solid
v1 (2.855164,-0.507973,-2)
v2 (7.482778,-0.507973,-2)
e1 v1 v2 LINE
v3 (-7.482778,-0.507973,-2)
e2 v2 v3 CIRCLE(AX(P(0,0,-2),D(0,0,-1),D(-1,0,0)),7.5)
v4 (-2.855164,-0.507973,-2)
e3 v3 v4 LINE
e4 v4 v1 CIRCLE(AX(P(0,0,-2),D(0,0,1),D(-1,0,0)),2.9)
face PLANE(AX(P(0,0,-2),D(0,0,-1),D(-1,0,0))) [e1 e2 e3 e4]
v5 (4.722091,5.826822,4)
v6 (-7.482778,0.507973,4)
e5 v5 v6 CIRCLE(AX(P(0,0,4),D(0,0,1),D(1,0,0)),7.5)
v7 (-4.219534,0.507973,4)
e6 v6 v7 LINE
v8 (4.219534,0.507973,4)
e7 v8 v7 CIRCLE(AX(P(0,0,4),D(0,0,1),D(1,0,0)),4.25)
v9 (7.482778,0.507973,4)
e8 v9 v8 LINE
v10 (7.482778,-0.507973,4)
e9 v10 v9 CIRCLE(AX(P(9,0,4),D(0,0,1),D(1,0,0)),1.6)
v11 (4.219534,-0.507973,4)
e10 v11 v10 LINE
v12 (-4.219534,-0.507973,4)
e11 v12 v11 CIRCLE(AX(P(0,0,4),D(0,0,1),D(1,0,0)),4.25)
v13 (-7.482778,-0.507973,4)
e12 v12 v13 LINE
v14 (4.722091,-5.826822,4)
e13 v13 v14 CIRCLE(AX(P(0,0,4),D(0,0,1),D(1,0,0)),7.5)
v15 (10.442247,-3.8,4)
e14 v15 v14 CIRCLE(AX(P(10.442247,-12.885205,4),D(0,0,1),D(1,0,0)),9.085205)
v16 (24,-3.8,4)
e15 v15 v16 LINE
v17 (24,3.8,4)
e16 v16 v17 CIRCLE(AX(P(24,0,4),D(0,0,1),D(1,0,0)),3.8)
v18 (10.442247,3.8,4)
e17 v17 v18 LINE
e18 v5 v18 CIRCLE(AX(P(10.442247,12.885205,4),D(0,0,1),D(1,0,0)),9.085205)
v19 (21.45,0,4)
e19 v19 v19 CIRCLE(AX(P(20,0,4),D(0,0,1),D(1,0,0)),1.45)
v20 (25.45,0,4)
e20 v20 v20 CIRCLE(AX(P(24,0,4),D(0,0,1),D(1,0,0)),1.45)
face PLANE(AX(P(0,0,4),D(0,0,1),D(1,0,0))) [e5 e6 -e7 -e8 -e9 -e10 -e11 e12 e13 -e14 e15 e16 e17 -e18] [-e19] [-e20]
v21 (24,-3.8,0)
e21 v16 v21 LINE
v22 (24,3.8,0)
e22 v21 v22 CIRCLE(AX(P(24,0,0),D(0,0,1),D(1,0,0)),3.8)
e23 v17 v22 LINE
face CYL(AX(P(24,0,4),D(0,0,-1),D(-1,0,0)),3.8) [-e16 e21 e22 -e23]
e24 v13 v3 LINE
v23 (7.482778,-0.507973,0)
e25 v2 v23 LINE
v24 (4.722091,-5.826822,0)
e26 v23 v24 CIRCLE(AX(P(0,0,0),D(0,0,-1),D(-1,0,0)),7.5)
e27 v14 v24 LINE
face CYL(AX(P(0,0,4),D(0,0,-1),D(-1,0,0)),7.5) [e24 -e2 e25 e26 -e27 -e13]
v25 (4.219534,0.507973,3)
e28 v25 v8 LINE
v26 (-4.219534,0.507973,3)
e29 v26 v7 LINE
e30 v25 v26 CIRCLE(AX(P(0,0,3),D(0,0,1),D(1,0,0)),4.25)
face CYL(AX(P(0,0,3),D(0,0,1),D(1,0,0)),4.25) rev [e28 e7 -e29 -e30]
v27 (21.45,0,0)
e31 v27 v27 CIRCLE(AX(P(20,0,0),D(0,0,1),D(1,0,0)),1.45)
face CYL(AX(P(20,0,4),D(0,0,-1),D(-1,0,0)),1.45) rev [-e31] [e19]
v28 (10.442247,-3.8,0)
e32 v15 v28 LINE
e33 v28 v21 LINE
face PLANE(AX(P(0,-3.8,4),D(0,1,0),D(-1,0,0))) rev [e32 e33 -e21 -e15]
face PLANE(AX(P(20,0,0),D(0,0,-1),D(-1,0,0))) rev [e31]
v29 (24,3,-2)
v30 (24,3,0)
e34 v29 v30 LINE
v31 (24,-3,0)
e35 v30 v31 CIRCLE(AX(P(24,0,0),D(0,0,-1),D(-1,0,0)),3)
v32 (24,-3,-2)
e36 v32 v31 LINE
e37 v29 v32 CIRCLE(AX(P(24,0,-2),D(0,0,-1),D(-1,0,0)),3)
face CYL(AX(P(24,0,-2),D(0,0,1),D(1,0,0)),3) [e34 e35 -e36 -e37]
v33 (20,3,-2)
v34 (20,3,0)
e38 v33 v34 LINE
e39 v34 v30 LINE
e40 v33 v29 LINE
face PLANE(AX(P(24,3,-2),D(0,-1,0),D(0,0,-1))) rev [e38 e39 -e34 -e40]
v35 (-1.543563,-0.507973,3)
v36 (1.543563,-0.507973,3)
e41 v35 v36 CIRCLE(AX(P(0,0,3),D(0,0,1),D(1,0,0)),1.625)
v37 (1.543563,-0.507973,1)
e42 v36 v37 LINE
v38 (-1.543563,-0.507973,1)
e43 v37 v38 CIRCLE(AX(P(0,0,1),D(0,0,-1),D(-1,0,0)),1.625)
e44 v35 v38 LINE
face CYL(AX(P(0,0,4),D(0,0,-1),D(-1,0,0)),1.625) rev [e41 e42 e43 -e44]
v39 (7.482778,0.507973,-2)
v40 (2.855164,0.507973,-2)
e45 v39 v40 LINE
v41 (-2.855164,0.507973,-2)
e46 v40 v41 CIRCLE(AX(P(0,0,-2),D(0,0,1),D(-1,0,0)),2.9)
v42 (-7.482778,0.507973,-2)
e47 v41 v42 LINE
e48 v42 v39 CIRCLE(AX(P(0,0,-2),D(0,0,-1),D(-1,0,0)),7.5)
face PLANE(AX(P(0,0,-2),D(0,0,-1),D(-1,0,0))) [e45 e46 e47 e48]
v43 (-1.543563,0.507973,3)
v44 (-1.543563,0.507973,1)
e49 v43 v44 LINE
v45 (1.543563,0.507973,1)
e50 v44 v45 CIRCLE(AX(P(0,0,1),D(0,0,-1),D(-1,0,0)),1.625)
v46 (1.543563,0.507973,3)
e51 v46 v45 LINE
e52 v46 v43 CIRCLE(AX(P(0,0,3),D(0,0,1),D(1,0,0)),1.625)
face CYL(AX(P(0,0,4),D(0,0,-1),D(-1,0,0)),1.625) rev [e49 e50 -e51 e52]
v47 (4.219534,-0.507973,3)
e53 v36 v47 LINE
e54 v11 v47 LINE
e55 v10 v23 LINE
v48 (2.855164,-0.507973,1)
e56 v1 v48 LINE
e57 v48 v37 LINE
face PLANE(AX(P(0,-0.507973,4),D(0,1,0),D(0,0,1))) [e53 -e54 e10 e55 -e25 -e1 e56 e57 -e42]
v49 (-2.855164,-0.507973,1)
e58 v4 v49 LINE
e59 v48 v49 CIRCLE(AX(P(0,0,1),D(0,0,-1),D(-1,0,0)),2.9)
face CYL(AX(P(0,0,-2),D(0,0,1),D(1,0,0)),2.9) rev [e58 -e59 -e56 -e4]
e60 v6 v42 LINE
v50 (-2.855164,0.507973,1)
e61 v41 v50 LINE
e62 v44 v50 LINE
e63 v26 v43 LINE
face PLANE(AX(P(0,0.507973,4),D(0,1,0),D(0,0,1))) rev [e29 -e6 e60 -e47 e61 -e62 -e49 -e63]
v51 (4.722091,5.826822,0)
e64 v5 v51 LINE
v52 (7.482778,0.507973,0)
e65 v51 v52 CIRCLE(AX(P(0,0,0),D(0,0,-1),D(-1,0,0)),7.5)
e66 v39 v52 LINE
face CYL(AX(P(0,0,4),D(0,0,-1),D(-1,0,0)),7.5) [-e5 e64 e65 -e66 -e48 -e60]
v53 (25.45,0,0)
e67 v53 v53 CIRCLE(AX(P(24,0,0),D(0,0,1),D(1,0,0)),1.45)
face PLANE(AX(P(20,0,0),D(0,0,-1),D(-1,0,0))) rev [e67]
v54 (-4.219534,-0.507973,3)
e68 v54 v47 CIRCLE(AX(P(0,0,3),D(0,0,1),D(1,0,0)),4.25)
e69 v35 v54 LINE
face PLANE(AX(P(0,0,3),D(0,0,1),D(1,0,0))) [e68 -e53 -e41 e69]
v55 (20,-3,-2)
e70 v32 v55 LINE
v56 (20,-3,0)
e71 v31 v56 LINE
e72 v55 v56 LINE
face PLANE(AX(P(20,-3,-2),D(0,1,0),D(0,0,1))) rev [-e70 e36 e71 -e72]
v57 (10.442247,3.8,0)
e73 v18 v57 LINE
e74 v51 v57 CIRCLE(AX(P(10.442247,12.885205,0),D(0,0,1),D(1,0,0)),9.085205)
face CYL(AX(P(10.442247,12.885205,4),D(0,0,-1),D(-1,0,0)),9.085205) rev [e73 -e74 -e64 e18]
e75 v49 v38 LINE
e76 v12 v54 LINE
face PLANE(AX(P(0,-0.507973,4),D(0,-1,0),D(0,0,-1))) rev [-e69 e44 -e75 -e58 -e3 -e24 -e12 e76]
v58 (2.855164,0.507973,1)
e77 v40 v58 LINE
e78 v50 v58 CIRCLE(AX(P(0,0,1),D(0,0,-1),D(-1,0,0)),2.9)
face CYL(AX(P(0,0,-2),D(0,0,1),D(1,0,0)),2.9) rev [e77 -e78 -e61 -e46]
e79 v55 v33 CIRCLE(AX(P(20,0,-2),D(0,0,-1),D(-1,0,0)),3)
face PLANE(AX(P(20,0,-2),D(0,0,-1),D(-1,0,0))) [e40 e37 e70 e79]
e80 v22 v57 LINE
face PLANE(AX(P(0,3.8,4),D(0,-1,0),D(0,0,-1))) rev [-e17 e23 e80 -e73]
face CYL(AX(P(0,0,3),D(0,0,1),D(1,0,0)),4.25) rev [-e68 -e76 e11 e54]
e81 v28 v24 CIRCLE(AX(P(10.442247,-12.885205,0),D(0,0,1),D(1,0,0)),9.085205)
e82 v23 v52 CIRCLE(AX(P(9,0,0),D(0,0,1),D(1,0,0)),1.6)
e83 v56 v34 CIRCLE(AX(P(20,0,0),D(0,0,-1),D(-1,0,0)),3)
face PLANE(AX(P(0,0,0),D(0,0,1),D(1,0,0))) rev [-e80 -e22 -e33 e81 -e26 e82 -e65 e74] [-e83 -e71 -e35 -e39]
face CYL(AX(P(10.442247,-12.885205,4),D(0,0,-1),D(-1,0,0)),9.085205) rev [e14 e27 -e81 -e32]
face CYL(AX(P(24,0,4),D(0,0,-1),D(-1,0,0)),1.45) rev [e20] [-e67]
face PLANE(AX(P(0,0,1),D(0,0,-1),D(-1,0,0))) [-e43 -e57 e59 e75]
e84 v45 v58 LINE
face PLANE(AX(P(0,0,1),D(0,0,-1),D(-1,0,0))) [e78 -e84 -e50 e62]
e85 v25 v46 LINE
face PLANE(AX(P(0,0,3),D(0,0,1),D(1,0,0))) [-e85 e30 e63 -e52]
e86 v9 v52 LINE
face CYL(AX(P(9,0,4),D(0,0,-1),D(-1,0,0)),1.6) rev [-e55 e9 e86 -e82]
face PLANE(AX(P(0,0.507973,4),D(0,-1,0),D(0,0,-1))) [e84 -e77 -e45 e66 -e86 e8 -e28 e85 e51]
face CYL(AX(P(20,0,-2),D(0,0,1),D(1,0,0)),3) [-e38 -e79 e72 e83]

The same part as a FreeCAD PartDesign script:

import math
import FreeCAD as App
import Part
import Sketcher

doc = App.newDocument("Part")
body = doc.addObject("PartDesign::Body", "Body")

sketch1 = body.newObject("Sketcher::SketchObject", "Sketch")
sketch1.AttachmentSupport = (doc.getObject("XY_Plane"), [""])
sketch1.MapMode = "FlatFace"
sketch1.addGeometry([
    Part.ArcOfCircle(Part.Circle(App.Vector(10.4, -12.9, 0), App.Vector(0, 0, 1), 9.1), math.radians(90), math.radians(129)),
    Part.LineSegment(App.Vector(10.4, -3.8, 0), App.Vector(24, -3.8, 0)),
    Part.ArcOfCircle(Part.Circle(App.Vector(24, 0, 0), App.Vector(0, 0, 1), 3.8), math.radians(-90), math.radians(90)),
    Part.LineSegment(App.Vector(24, 3.8, 0), App.Vector(10.4, 3.8, 0)),
    Part.ArcOfCircle(Part.Circle(App.Vector(10.4, 12.9, 0), App.Vector(0, 0, 1), 9.1), math.radians(-129), math.radians(-90)),
    Part.ArcOfCircle(Part.Circle(App.Vector(0, 0, 0), App.Vector(0, 0, 1), 7.5), math.radians(51), math.radians(176)),
    Part.LineSegment(App.Vector(-7.5, 0.5, 0), App.Vector(-1.5, 0.5, 0)),
    Part.ArcOfCircle(Part.Circle(App.Vector(0, 0, 0), App.Vector(0, 0, 1), 1.6), math.radians(18), math.radians(162)),
    Part.LineSegment(App.Vector(1.5, 0.5, 0), App.Vector(7.5, 0.5, 0)),
    Part.ArcOfCircle(Part.Circle(App.Vector(9, 0, 0), App.Vector(0, 0, 1), 1.6), math.radians(-161), math.radians(161)),
    Part.LineSegment(App.Vector(7.5, -0.5, 0), App.Vector(1.5, -0.5, 0)),
    Part.ArcOfCircle(Part.Circle(App.Vector(0, 0, 0), App.Vector(0, 0, 1), 1.6), math.radians(-162), math.radians(-18)),
    Part.LineSegment(App.Vector(-1.5, -0.5, 0), App.Vector(-7.5, -0.5, 0)),
    Part.ArcOfCircle(Part.Circle(App.Vector(0, 0, 0), App.Vector(0, 0, 1), 7.5), math.radians(-176), math.radians(-51)),
    Part.Circle(App.Vector(24, 0, 0), App.Vector(0, 0, 1), 1.4),
    Part.Circle(App.Vector(20, 0, 0), App.Vector(0, 0, 1), 1.4),
], False)
sketch1.addConstraint([
    Sketcher.Constraint("Tangent", 0, 1, 1, 1),
    Sketcher.Constraint("Tangent", 1, 2, 2, 1),
    Sketcher.Constraint("Tangent", 2, 2, 3, 1),
    Sketcher.Constraint("Tangent", 3, 2, 4, 2),
    Sketcher.Constraint("Tangent", 4, 1, 5, 1),
    Sketcher.Constraint("Coincident", 5, 2, 6, 1),
    Sketcher.Constraint("Coincident", 6, 2, 7, 2),
    Sketcher.Constraint("Coincident", 7, 1, 8, 1),
    Sketcher.Constraint("Coincident", 8, 2, 9, 2),
    Sketcher.Constraint("Coincident", 9, 1, 10, 1),
    Sketcher.Constraint("Coincident", 10, 2, 11, 2),
    Sketcher.Constraint("Coincident", 11, 1, 12, 1),
    Sketcher.Constraint("Coincident", 12, 2, 13, 1),
    Sketcher.Constraint("Tangent", 13, 2, 0, 2),
    Sketcher.Constraint("Horizontal", 1),
    Sketcher.Constraint("Horizontal", 3),
    Sketcher.Constraint("Horizontal", 6),
    Sketcher.Constraint("Horizontal", 8),
    Sketcher.Constraint("Horizontal", 10),
    Sketcher.Constraint("Horizontal", 12),
    Sketcher.Constraint("Coincident", 5, 3, -1, 1),
    Sketcher.Constraint("Coincident", 7, 3, -1, 1),
    Sketcher.Constraint("Coincident", 11, 3, -1, 1),
    Sketcher.Constraint("Coincident", 13, 3, -1, 1),
    Sketcher.Constraint("Coincident", 14, 3, 2, 3),
    Sketcher.Constraint("Equal", 0, 4),
    Sketcher.Constraint("Equal", 7, 11),
    Sketcher.Constraint("Equal", 5, 13),
    Sketcher.Constraint("Equal", 14, 15),
    Sketcher.Constraint("Symmetric", 5, 2, 9, 1, -1, 1),
    Sketcher.Constraint("Symmetric", 8, 2, 12, 2, -1, 1),
    Sketcher.Constraint("PointOnObject", 2, 3, -1),
    Sketcher.Constraint("PointOnObject", 9, 3, -1),
    Sketcher.Constraint("PointOnObject", 15, 3, -1),
    Sketcher.Constraint("Diameter", 14, 2.9),
    Sketcher.Constraint("Radius", 2, 3.8),
    Sketcher.Constraint("Radius", 5, 7.5),
    Sketcher.Constraint("Radius", 9, 1.6),
    Sketcher.Constraint("DistanceX", -1, 1, 2, 3, 24.0),
    Sketcher.Constraint("DistanceX", -1, 1, 9, 3, 9.0),
    Sketcher.Constraint("DistanceX", -1, 1, 15, 3, 20.0),
    Sketcher.Constraint("Radius", 7, 1.625),
    Sketcher.Constraint("Radius", 0, 9.085205),
])
pad1 = body.newObject("PartDesign::Pad", "Pad")
pad1.Profile = sketch1
pad1.Length = 4

sketch2 = body.newObject("Sketcher::SketchObject", "Sketch001")
sketch2.AttachmentSupport = (doc.getObject("XY_Plane"), [""])
sketch2.MapMode = "FlatFace"
sketch2.AttachmentOffset = App.Placement(App.Vector(0, 0, -2), App.Rotation())
sketch2.addGeometry([
    Part.LineSegment(App.Vector(24, -3, 0), App.Vector(20, -3, 0)),
    Part.ArcOfCircle(Part.Circle(App.Vector(20, 0, 0), App.Vector(0, 0, 1), 3), math.radians(90), math.radians(270)),
    Part.LineSegment(App.Vector(20, 3, 0), App.Vector(24, 3, 0)),
    Part.ArcOfCircle(Part.Circle(App.Vector(24, 0, 0), App.Vector(0, 0, 1), 3), math.radians(-90), math.radians(90)),
    Part.LineSegment(App.Vector(-7.5, -0.5, 0), App.Vector(-2.9, -0.5, 0)),
    Part.ArcOfCircle(Part.Circle(App.Vector(0, 0, 0), App.Vector(0, 0, 1), 2.9), math.radians(-170), math.radians(-10)),
    Part.LineSegment(App.Vector(2.9, -0.5, 0), App.Vector(7.5, -0.5, 0)),
    Part.ArcOfCircle(Part.Circle(App.Vector(0, 0, 0), App.Vector(0, 0, 1), 7.5), math.radians(-176), math.radians(-4)),
    Part.LineSegment(App.Vector(-2.9, 0.5, 0), App.Vector(-7.5, 0.5, 0)),
    Part.ArcOfCircle(Part.Circle(App.Vector(0, 0, 0), App.Vector(0, 0, 1), 7.5), math.radians(4), math.radians(176)),
    Part.LineSegment(App.Vector(7.5, 0.5, 0), App.Vector(2.9, 0.5, 0)),
    Part.ArcOfCircle(Part.Circle(App.Vector(0, 0, 0), App.Vector(0, 0, 1), 2.9), math.radians(10), math.radians(170)),
], False)
sketch2.addConstraint([
    Sketcher.Constraint("Tangent", 0, 2, 1, 2),
    Sketcher.Constraint("Tangent", 1, 1, 2, 1),
    Sketcher.Constraint("Tangent", 2, 2, 3, 2),
    Sketcher.Constraint("Tangent", 3, 1, 0, 1),
    Sketcher.Constraint("Coincident", 4, 2, 5, 1),
    Sketcher.Constraint("Coincident", 5, 2, 6, 1),
    Sketcher.Constraint("Coincident", 6, 2, 7, 2),
    Sketcher.Constraint("Coincident", 7, 1, 4, 1),
    Sketcher.Constraint("Coincident", 8, 2, 9, 2),
    Sketcher.Constraint("Coincident", 9, 1, 10, 1),
    Sketcher.Constraint("Coincident", 10, 2, 11, 1),
    Sketcher.Constraint("Coincident", 11, 2, 8, 1),
    Sketcher.Constraint("Horizontal", 0),
    Sketcher.Constraint("Horizontal", 2),
    Sketcher.Constraint("Horizontal", 4),
    Sketcher.Constraint("Horizontal", 6),
    Sketcher.Constraint("Horizontal", 8),
    Sketcher.Constraint("Horizontal", 10),
    Sketcher.Constraint("Coincident", 5, 3, -1, 1),
    Sketcher.Constraint("Coincident", 7, 3, -1, 1),
    Sketcher.Constraint("Coincident", 9, 3, -1, 1),
    Sketcher.Constraint("Coincident", 11, 3, -1, 1),
    Sketcher.Constraint("Equal", 7, 9),
    Sketcher.Constraint("Equal", 5, 11),
    Sketcher.Constraint("PointOnObject", 1, 3, -1),
    Sketcher.Constraint("Horizontal", 4, 2, 5, 2),
    Sketcher.Constraint("Horizontal", 8, 2, 9, 1),
    Sketcher.Constraint("Vertical", 7, 1, 8, 2),
    Sketcher.Constraint("Radius", 1, 3.0),
    Sketcher.Constraint("Radius", 5, 2.9),
    Sketcher.Constraint("Radius", 7, 7.5),
    Sketcher.Constraint("DistanceX", 0, 2, 0, 1, 4.0),
    Sketcher.Constraint("DistanceX", -1, 1, 1, 3, 20.0),
    Sketcher.Constraint("DistanceX", 4, 1, 4, 2, 4.627613),
])
pad2 = body.newObject("PartDesign::Pad", "Pad001")
pad2.Profile = sketch2
pad2.Length = 2

sketch3 = body.newObject("Sketcher::SketchObject", "Sketch002")
sketch3.AttachmentSupport = (doc.getObject("XY_Plane"), [""])
sketch3.MapMode = "FlatFace"
sketch3.AttachmentOffset = App.Placement(App.Vector(0, 0, 4), App.Rotation())
sketch3.addGeometry(Part.Circle(App.Vector(0, 0, 0), App.Vector(0, 0, 1), 4.2), False)
sketch3.addConstraint([
    Sketcher.Constraint("Coincident", 0, 3, -1, 1),
    Sketcher.Constraint("Diameter", 0, 8.5),
])
pocket1 = body.newObject("PartDesign::Pocket", "Pocket")
pocket1.Profile = sketch3
pocket1.Length = 1

sketch4 = body.newObject("Sketcher::SketchObject", "Sketch003")
sketch4.AttachmentSupport = (doc.getObject("XY_Plane"), [""])
sketch4.MapMode = "FlatFace"
sketch4.addGeometry(Part.Circle(App.Vector(0, 0, 0), App.Vector(0, 0, 1), 2.9), False)
sketch4.addConstraint([
    Sketcher.Constraint("Coincident", 0, 3, -1, 1),
    Sketcher.Constraint("Diameter", 0, 5.8),
])
pocket2 = body.newObject("PartDesign::Pocket", "Pocket001")
pocket2.Profile = sketch4
pocket2.Length = 1
pocket2.Reversed = True

doc.recompute()
